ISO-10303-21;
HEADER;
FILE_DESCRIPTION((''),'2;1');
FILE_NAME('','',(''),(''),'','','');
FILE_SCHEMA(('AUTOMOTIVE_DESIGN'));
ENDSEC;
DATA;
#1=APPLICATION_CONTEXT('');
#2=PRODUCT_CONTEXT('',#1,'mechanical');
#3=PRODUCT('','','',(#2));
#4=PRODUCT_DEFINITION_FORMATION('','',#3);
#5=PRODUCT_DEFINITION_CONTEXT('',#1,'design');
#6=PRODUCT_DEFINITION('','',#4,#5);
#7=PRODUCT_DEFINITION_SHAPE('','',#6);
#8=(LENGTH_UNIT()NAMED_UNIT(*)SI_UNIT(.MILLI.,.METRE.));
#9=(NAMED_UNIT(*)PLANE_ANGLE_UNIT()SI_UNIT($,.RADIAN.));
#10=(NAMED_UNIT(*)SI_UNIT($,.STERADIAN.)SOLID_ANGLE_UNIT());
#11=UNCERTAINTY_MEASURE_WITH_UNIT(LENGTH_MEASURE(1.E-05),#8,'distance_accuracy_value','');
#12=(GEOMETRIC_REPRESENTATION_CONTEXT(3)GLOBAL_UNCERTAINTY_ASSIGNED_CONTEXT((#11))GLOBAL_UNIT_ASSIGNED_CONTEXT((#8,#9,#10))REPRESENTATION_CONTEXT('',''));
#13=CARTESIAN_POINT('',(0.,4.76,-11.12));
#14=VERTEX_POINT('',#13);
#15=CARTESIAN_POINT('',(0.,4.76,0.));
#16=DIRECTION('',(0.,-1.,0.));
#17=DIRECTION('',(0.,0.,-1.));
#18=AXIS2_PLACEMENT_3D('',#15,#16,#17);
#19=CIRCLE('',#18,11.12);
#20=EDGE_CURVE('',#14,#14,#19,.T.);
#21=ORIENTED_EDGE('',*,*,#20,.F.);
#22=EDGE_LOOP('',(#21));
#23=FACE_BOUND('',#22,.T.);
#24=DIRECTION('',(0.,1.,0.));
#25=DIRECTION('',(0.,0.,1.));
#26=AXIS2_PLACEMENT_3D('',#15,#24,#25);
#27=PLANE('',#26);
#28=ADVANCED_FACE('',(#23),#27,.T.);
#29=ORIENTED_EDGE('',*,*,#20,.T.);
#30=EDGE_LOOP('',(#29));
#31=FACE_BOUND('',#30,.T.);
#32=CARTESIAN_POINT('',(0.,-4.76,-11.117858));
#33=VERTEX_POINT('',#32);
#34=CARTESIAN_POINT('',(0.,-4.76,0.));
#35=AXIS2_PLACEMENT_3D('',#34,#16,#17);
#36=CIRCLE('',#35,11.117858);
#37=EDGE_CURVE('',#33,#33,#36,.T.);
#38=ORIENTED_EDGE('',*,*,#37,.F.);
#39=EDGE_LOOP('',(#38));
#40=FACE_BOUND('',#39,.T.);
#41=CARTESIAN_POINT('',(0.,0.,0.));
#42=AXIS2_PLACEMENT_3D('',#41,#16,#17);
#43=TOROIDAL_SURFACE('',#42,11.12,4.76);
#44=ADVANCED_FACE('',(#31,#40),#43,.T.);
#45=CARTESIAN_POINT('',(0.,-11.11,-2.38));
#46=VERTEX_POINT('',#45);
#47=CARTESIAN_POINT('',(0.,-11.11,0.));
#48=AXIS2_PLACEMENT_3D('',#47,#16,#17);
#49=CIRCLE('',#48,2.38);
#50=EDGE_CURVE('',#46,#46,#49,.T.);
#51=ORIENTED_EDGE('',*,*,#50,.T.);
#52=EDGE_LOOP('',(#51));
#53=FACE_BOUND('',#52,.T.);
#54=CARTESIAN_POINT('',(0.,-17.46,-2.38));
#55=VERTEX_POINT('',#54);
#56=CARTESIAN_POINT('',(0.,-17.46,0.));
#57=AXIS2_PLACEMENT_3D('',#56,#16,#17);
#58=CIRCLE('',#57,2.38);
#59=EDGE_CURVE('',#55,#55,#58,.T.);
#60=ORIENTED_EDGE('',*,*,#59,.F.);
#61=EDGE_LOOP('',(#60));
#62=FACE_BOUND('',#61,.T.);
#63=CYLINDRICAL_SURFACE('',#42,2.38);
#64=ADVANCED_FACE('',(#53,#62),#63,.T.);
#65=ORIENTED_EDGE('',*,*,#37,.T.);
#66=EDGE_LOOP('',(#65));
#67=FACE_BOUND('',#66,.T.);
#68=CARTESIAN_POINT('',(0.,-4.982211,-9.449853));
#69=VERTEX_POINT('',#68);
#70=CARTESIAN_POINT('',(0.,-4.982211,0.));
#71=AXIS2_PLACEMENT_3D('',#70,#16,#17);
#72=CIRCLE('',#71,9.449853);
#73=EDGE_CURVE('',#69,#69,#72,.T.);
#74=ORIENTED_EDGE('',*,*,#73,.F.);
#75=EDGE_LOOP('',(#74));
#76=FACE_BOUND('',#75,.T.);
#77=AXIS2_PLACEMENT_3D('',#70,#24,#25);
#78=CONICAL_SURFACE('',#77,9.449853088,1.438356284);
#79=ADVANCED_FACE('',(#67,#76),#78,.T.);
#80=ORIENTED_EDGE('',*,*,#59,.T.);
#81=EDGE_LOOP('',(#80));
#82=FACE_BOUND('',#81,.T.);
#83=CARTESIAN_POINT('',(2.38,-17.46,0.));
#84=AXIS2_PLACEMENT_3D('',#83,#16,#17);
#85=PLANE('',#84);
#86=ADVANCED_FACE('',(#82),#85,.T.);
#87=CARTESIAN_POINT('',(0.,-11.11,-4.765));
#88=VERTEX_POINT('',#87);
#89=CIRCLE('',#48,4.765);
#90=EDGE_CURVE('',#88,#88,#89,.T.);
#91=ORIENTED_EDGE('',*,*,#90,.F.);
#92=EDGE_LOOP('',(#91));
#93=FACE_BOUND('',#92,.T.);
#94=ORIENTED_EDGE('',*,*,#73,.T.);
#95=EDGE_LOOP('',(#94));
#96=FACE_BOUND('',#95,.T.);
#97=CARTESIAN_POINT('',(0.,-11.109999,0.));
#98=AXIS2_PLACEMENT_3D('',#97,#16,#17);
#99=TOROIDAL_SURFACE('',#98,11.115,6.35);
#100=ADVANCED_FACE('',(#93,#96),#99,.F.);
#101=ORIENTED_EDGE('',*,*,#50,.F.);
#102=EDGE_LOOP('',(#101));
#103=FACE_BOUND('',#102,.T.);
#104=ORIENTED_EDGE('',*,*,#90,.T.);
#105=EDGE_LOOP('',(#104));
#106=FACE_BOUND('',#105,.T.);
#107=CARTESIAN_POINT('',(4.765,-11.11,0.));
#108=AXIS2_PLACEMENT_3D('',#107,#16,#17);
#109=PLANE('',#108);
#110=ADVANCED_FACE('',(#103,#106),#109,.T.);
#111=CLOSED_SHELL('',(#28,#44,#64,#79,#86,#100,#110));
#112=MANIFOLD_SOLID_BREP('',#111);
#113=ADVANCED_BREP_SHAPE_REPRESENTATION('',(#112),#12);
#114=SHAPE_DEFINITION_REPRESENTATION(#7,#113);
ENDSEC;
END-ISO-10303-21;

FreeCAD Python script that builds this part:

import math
import FreeCAD as App
import Part
import Sketcher

V = App.Vector
Q = App.Units.Quantity

doc = App.newDocument("Part")
body = doc.addObject("PartDesign::Body", "Body")

sketch1 = doc.addObject("Sketcher::SketchObject", "Sketch")
body.addObject(sketch1)
sketch1.AttachmentSupport = (doc.XY_Plane, [""])
sketch1.MapMode = "FlatFace"
sketch1.addGeometry(Part.LineSegment(V(11.1, 4.8, 0), V(0, 4.8, 0)), False)
sketch1.addGeometry(Part.LineSegment(V(0, 4.8, 0), V(0, -17.5, 0)), False)
sketch1.addGeometry(Part.LineSegment(V(0, -17.5, 0), V(2.4, -17.5, 0)), False)
sketch1.addGeometry(Part.LineSegment(V(2.4, -17.5, 0), V(2.4, -11.1, 0)), False)
sketch1.addGeometry(Part.LineSegment(V(2.4, -11.1, 0), V(4.8, -11.1, 0)), False)
sketch1.addGeometry(Part.ArcOfCircle(Part.Circle(V(11.1, -11.1, 0), V(0, 0, 1), 6.3), math.radians(105), math.radians(180)), False)
sketch1.addGeometry(Part.LineSegment(V(9.4, -5, 0), V(11.1, -4.8, 0)), False)
sketch1.addGeometry(Part.ArcOfCircle(Part.Circle(V(11.1, 0, 0), V(0, 0, 1), 4.8), math.radians(-90), math.radians(90)), False)
sketch1.addConstraint(Sketcher.Constraint("Coincident", 0, 2, 1, 1))
sketch1.addConstraint(Sketcher.Constraint("Coincident", 1, 2, 2, 1))
sketch1.addConstraint(Sketcher.Constraint("Coincident", 2, 2, 3, 1))
sketch1.addConstraint(Sketcher.Constraint("Coincident", 3, 2, 4, 1))
sketch1.addConstraint(Sketcher.Constraint("Coincident", 4, 2, 5, 2))
sketch1.addConstraint(Sketcher.Constraint("Coincident", 5, 1, 6, 1))
sketch1.addConstraint(Sketcher.Constraint("Coincident", 6, 2, 7, 1))
sketch1.addConstraint(Sketcher.Constraint("Tangent", 7, 2, 0, 1))
sketch1.addConstraint(Sketcher.Constraint("Horizontal", 0))
sketch1.addConstraint(Sketcher.Constraint("Vertical", 1))
sketch1.addConstraint(Sketcher.Constraint("Horizontal", 2))
sketch1.addConstraint(Sketcher.Constraint("Vertical", 3))
sketch1.addConstraint(Sketcher.Constraint("Horizontal", 4))
sketch1.addConstraint(Sketcher.Constraint("PointOnObject", 7, 3, -1))
sketch1.addConstraint(Sketcher.Constraint("PointOnObject", 0, 2, -2))
sketch1.addConstraint(Sketcher.Constraint("Horizontal", 5, 3, 3, 2))
sketch1.addConstraint(Sketcher.Constraint("Radius", 5, Q("0.25 in")))
sketch1.addConstraint(Sketcher.Constraint("DistanceY", 3, 1, 3, 2, Q("0.25 in")))
sketch1.addConstraint(Sketcher.Constraint("Radius", 7, Q("4.76 mm")))
sketch1.addConstraint(Sketcher.Constraint("DistanceY", 5, 3, 6, 2, Q("0.25 in")))
sketch1.addConstraint(Sketcher.Constraint("DistanceX", 0, 2, 0, 1, Q("11.12 mm")))
sketch1.addConstraint(Sketcher.Constraint("DistanceX", 2, 1, 2, 2, Q("2.38 mm")))
sketch1.addConstraint(Sketcher.Constraint("DistanceX", 4, 1, 4, 2, Q("2.385 mm")))
sketch1.addConstraint(Sketcher.Constraint("Distance", 6, Q("1.682741 mm")))
sketch1.addConstraint(Sketcher.Constraint("DistanceY", 5, 1, -1, 1, Q("4.982211 mm")))
revolution = doc.addObject("PartDesign::Revolution", "Revolution")
body.addObject(revolution)
revolution.Profile = sketch1
revolution.ReferenceAxis = (sketch1, ["V_Axis"])
revolution.Angle = 360

doc.recompute()
